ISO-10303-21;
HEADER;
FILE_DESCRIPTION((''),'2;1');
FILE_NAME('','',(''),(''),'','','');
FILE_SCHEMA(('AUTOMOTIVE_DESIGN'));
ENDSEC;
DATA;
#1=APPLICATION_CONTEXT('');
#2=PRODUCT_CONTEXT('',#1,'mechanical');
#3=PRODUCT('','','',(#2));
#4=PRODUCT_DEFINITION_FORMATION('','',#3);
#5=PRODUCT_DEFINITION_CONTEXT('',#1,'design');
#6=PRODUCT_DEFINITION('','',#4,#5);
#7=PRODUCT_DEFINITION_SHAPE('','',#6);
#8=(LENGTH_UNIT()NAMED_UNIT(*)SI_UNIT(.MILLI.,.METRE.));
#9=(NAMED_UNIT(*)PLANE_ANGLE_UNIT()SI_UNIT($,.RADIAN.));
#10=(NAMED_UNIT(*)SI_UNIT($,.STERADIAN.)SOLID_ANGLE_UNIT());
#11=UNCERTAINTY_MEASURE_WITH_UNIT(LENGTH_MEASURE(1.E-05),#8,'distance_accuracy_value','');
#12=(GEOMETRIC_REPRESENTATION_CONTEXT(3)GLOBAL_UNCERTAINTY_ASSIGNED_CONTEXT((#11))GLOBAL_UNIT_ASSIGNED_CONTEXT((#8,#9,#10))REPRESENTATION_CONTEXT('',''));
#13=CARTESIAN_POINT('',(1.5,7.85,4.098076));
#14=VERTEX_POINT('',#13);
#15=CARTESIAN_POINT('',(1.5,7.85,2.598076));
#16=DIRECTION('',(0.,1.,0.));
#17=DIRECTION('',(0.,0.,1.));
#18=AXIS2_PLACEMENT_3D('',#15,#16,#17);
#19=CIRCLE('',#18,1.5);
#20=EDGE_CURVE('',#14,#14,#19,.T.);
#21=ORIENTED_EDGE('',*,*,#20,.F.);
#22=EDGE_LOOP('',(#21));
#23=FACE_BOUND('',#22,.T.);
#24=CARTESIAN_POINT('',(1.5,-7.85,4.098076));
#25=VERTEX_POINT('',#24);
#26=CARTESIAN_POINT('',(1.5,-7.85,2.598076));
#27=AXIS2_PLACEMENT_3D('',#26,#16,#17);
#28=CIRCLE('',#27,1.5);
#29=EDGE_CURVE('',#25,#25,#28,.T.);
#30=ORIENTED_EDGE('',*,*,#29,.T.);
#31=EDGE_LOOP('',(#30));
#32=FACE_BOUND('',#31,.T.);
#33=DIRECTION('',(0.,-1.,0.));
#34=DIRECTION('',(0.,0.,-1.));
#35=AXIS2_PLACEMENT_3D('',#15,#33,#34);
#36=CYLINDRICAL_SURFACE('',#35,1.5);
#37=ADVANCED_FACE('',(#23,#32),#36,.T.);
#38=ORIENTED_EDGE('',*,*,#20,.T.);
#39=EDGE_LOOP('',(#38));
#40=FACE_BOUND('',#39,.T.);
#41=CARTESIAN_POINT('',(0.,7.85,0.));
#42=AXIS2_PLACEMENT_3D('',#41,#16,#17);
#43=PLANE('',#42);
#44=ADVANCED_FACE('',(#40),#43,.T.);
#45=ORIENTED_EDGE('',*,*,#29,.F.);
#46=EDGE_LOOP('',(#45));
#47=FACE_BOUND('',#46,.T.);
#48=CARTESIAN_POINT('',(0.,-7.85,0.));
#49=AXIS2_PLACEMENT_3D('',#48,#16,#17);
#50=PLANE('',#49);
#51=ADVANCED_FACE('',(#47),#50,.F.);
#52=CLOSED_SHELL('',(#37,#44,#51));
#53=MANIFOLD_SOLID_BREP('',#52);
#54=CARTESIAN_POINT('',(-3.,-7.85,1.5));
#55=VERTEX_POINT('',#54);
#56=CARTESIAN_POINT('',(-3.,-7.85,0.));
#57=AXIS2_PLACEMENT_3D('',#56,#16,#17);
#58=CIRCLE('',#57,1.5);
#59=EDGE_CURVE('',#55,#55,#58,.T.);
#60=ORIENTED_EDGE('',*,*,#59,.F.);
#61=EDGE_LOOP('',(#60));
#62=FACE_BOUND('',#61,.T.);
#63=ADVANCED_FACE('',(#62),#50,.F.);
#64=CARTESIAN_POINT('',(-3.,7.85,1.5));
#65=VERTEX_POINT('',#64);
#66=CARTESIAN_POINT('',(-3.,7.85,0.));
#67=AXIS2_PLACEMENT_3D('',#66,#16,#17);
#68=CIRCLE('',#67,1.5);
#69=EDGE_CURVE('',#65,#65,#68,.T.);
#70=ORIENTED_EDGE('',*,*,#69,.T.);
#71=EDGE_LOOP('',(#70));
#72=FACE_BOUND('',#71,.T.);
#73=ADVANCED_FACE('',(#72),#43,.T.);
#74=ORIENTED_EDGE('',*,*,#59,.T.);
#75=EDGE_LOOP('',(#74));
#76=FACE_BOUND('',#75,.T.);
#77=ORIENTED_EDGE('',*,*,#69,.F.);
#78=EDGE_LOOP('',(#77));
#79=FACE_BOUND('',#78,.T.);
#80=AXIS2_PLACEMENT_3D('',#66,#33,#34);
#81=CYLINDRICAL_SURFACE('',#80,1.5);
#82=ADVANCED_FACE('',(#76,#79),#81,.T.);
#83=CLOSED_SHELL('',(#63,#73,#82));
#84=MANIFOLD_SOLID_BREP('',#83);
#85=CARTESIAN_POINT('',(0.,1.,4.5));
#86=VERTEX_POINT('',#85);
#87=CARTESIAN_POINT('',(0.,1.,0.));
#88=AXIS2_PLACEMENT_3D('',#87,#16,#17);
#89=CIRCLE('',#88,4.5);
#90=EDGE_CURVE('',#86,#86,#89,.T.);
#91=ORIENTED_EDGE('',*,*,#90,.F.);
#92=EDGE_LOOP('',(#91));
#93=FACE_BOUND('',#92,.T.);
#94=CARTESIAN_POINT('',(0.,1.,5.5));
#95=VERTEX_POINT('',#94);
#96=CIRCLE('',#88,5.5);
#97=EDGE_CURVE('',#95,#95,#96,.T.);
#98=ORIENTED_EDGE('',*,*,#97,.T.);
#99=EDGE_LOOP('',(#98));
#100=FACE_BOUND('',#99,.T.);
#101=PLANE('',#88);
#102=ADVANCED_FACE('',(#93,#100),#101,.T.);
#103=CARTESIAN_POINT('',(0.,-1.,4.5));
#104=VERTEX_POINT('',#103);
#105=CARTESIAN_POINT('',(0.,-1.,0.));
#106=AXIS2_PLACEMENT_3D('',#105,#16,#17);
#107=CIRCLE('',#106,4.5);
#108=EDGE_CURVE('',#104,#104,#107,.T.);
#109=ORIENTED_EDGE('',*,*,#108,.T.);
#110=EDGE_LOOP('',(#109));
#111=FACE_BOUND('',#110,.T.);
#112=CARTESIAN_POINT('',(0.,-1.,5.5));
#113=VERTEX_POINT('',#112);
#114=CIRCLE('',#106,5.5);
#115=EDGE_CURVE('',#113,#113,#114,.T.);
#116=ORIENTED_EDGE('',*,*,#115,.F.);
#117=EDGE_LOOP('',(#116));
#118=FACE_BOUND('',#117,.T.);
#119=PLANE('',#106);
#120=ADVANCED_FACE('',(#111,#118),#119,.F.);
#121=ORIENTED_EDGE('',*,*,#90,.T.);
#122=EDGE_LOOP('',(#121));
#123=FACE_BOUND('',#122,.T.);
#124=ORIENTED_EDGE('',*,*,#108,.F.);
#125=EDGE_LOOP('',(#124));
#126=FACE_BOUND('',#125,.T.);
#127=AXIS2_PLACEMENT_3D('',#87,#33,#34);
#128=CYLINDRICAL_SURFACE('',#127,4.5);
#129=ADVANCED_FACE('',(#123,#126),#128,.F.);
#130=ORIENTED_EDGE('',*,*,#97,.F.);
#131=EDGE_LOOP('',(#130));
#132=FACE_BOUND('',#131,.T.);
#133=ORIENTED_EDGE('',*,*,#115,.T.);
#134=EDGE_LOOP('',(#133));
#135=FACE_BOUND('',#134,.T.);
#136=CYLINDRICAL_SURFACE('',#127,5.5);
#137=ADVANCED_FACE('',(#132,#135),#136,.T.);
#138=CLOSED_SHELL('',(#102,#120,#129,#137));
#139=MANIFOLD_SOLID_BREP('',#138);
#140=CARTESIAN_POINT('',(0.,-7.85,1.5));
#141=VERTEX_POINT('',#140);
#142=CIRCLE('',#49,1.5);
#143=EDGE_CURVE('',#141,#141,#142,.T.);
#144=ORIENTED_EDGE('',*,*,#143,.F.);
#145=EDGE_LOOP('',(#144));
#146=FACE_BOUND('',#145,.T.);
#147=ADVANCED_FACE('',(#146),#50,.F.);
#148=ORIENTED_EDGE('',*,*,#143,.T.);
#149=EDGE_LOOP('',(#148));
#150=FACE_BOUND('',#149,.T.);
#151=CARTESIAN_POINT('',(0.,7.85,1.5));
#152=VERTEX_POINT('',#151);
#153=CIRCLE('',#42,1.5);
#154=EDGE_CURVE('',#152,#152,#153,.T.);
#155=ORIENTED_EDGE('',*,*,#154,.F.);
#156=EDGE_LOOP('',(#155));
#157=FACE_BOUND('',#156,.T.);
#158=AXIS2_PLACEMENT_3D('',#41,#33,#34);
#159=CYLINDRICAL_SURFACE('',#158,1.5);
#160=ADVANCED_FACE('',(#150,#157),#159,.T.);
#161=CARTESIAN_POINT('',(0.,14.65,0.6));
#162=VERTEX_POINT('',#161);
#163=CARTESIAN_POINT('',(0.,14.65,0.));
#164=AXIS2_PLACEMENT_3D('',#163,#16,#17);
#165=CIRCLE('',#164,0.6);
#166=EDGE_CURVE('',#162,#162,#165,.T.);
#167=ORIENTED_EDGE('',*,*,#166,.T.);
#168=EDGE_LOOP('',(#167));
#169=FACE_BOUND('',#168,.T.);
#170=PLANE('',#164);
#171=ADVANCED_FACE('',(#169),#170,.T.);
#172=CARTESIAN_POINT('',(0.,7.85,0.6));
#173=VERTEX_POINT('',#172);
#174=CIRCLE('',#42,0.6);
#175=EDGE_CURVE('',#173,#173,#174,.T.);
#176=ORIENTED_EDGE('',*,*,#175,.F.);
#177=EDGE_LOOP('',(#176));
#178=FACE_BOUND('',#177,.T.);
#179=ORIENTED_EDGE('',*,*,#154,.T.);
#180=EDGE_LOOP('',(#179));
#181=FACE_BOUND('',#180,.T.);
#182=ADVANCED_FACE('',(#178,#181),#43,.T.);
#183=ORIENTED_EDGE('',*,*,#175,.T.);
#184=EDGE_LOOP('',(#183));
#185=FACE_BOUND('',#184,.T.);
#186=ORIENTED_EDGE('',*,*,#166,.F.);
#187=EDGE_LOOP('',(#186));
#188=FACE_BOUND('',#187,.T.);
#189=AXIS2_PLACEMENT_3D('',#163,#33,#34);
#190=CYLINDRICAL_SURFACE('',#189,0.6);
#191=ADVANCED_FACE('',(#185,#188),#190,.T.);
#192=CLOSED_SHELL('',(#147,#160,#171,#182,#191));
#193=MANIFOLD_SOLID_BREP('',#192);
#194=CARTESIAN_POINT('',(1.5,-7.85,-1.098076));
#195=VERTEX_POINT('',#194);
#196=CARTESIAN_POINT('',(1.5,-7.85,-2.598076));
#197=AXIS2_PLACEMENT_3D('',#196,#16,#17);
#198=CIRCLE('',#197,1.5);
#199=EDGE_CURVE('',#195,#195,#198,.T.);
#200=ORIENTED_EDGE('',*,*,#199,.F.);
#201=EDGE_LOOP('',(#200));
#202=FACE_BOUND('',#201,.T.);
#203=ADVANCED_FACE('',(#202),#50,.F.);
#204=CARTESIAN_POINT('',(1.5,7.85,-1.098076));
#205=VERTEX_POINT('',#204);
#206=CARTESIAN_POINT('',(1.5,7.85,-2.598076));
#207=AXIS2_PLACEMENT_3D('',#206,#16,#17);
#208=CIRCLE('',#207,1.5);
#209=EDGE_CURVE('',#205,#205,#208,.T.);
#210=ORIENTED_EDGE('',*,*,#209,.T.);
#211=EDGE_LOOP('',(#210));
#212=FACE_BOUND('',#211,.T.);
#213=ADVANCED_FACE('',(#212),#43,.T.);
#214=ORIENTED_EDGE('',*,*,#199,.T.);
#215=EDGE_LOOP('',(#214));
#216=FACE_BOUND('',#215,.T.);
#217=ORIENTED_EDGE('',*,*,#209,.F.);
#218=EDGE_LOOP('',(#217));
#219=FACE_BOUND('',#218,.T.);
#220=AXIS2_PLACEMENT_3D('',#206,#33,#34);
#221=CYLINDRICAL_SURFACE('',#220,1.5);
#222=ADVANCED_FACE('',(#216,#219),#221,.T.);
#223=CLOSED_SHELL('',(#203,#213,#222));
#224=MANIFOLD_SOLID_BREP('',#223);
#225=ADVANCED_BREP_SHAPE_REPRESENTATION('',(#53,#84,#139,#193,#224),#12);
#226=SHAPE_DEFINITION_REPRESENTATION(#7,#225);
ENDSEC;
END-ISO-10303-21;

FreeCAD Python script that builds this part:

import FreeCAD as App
import Part
import Sketcher

doc = App.newDocument("Part")
body = doc.addObject("PartDesign::Body", "Body")

# Sketch on XZ plane
sketch1 = doc.addObject("Sketcher::SketchObject", "Sketch")
body.addObject(sketch1)
sketch1.AttachmentSupport = (doc.XZ_Plane, [""])
sketch1.MapMode = "FlatFace"
sketch1.addGeometry(Part.Circle(App.Vector(-3, 0, 0), App.Vector(0, 0, 1), 1.5), False)
sketch1.addConstraint(Sketcher.Constraint("PointOnObject", 0, 3, -1))
sketch1.addConstraint(Sketcher.Constraint("Diameter", 0, 3.0))
sketch1.addConstraint(Sketcher.Constraint("DistanceX", 0, 3, -1, 1, 3.0))
pad1 = doc.addObject("PartDesign::Pad", "Pad")
body.addObject(pad1)
pad1.Profile = sketch1
pad1.Length = 15.7
pad1.Midplane = True
body2 = doc.addObject("PartDesign::Body", "Body001")

# Sketch on XZ plane
sketch2 = doc.addObject("Sketcher::SketchObject", "Sketch001")
body2.addObject(sketch2)
sketch2.AttachmentSupport = (doc.getObject("XZ_Plane001"), [""])
sketch2.MapMode = "FlatFace"
sketch2.addGeometry(Part.Circle(App.Vector(0, 0, 0), App.Vector(0, 0, 1), 1.5), False)
sketch2.addConstraint(Sketcher.Constraint("Coincident", 0, 3, -1, 1))
sketch2.addConstraint(Sketcher.Constraint("Diameter", 0, 3.0))
pad2 = doc.addObject("PartDesign::Pad", "Pad001")
body2.addObject(pad2)
pad2.Profile = sketch2
pad2.Length = 15.7
pad2.Midplane = True

# Sketch on XZ plane
sketch3 = doc.addObject("Sketcher::SketchObject", "Sketch002")
body2.addObject(sketch3)
sketch3.AttachmentSupport = (doc.getObject("XZ_Plane001"), [""])
sketch3.MapMode = "FlatFace"
sketch3.AttachmentOffset = App.Placement(App.Vector(0, 0, -7.85), App.Rotation())
sketch3.addGeometry(Part.Circle(App.Vector(0, 0, 0), App.Vector(0, 0, 1), 0.6), False)
sketch3.addConstraint(Sketcher.Constraint("Coincident", 0, 3, -1, 1))
sketch3.addConstraint(Sketcher.Constraint("Diameter", 0, 1.2))
pad3 = doc.addObject("PartDesign::Pad", "Pad002")
body2.addObject(pad3)
pad3.Profile = sketch3
pad3.Length = 6.8
pad3.Reversed = True
body3 = doc.addObject("PartDesign::Body", "Body002")

# Sketch on XZ plane
sketch4 = doc.addObject("Sketcher::SketchObject", "Sketch003")
body3.addObject(sketch4)
sketch4.AttachmentSupport = (doc.getObject("XZ_Plane002"), [""])
sketch4.MapMode = "FlatFace"
sketch4.addGeometry(Part.Circle(App.Vector(1.5, -2.6, 0), App.Vector(0, 0, 1), 1.5), False)
sketch4.addConstraint(Sketcher.Constraint("Diameter", 0, 3.0))
sketch4.addConstraint(Sketcher.Constraint("DistanceX", -1, 1, 0, 3, 1.5))
sketch4.addConstraint(Sketcher.Constraint("DistanceY", 0, 3, -1, 1, 2.598076))
pad4 = doc.addObject("PartDesign::Pad", "Pad003")
body3.addObject(pad4)
pad4.Profile = sketch4
pad4.Length = 15.7
pad4.Midplane = True
body4 = doc.addObject("PartDesign::Body", "Body003")

# Sketch on XZ plane
sketch5 = doc.addObject("Sketcher::SketchObject", "Sketch004")
body4.addObject(sketch5)
sketch5.AttachmentSupport = (doc.getObject("XZ_Plane003"), [""])
sketch5.MapMode = "FlatFace"
sketch5.addGeometry(Part.Circle(App.Vector(1.5, 2.6, 0), App.Vector(0, 0, 1), 1.5), False)
sketch5.addConstraint(Sketcher.Constraint("Diameter", 0, 3.0))
sketch5.addConstraint(Sketcher.Constraint("DistanceX", -1, 1, 0, 3, 1.5))
sketch5.addConstraint(Sketcher.Constraint("DistanceY", -1, 1, 0, 3, 2.598076))
pad5 = doc.addObject("PartDesign::Pad", "Pad004")
body4.addObject(pad5)
pad5.Profile = sketch5
pad5.Length = 15.7
pad5.Midplane = True
body5 = doc.addObject("PartDesign::Body", "Body004")

# Sketch on XZ plane
sketch6 = doc.addObject("Sketcher::SketchObject", "Sketch005")
body5.addObject(sketch6)
sketch6.AttachmentSupport = (doc.getObject("XZ_Plane004"), [""])
sketch6.MapMode = "FlatFace"
sketch6.addGeometry(Part.Circle(App.Vector(0, 0, 0), App.Vector(0, 0, 1), 5.5), False)
sketch6.addGeometry(Part.Circle(App.Vector(0, 0, 0), App.Vector(0, 0, 1), 4.5), False)
sketch6.addConstraint(Sketcher.Constraint("Coincident", 0, 3, -1, 1))
sketch6.addConstraint(Sketcher.Constraint("Coincident", 1, 3, -1, 1))
sketch6.addConstraint(Sketcher.Constraint("Diameter", 0, 11.0))
sketch6.addConstraint(Sketcher.Constraint("Diameter", 1, 9.0))
pad6 = doc.addObject("PartDesign::Pad", "Pad005")
body5.addObject(pad6)
pad6.Profile = sketch6
pad6.Length = 2
pad6.Midplane = True

doc.recompute()
